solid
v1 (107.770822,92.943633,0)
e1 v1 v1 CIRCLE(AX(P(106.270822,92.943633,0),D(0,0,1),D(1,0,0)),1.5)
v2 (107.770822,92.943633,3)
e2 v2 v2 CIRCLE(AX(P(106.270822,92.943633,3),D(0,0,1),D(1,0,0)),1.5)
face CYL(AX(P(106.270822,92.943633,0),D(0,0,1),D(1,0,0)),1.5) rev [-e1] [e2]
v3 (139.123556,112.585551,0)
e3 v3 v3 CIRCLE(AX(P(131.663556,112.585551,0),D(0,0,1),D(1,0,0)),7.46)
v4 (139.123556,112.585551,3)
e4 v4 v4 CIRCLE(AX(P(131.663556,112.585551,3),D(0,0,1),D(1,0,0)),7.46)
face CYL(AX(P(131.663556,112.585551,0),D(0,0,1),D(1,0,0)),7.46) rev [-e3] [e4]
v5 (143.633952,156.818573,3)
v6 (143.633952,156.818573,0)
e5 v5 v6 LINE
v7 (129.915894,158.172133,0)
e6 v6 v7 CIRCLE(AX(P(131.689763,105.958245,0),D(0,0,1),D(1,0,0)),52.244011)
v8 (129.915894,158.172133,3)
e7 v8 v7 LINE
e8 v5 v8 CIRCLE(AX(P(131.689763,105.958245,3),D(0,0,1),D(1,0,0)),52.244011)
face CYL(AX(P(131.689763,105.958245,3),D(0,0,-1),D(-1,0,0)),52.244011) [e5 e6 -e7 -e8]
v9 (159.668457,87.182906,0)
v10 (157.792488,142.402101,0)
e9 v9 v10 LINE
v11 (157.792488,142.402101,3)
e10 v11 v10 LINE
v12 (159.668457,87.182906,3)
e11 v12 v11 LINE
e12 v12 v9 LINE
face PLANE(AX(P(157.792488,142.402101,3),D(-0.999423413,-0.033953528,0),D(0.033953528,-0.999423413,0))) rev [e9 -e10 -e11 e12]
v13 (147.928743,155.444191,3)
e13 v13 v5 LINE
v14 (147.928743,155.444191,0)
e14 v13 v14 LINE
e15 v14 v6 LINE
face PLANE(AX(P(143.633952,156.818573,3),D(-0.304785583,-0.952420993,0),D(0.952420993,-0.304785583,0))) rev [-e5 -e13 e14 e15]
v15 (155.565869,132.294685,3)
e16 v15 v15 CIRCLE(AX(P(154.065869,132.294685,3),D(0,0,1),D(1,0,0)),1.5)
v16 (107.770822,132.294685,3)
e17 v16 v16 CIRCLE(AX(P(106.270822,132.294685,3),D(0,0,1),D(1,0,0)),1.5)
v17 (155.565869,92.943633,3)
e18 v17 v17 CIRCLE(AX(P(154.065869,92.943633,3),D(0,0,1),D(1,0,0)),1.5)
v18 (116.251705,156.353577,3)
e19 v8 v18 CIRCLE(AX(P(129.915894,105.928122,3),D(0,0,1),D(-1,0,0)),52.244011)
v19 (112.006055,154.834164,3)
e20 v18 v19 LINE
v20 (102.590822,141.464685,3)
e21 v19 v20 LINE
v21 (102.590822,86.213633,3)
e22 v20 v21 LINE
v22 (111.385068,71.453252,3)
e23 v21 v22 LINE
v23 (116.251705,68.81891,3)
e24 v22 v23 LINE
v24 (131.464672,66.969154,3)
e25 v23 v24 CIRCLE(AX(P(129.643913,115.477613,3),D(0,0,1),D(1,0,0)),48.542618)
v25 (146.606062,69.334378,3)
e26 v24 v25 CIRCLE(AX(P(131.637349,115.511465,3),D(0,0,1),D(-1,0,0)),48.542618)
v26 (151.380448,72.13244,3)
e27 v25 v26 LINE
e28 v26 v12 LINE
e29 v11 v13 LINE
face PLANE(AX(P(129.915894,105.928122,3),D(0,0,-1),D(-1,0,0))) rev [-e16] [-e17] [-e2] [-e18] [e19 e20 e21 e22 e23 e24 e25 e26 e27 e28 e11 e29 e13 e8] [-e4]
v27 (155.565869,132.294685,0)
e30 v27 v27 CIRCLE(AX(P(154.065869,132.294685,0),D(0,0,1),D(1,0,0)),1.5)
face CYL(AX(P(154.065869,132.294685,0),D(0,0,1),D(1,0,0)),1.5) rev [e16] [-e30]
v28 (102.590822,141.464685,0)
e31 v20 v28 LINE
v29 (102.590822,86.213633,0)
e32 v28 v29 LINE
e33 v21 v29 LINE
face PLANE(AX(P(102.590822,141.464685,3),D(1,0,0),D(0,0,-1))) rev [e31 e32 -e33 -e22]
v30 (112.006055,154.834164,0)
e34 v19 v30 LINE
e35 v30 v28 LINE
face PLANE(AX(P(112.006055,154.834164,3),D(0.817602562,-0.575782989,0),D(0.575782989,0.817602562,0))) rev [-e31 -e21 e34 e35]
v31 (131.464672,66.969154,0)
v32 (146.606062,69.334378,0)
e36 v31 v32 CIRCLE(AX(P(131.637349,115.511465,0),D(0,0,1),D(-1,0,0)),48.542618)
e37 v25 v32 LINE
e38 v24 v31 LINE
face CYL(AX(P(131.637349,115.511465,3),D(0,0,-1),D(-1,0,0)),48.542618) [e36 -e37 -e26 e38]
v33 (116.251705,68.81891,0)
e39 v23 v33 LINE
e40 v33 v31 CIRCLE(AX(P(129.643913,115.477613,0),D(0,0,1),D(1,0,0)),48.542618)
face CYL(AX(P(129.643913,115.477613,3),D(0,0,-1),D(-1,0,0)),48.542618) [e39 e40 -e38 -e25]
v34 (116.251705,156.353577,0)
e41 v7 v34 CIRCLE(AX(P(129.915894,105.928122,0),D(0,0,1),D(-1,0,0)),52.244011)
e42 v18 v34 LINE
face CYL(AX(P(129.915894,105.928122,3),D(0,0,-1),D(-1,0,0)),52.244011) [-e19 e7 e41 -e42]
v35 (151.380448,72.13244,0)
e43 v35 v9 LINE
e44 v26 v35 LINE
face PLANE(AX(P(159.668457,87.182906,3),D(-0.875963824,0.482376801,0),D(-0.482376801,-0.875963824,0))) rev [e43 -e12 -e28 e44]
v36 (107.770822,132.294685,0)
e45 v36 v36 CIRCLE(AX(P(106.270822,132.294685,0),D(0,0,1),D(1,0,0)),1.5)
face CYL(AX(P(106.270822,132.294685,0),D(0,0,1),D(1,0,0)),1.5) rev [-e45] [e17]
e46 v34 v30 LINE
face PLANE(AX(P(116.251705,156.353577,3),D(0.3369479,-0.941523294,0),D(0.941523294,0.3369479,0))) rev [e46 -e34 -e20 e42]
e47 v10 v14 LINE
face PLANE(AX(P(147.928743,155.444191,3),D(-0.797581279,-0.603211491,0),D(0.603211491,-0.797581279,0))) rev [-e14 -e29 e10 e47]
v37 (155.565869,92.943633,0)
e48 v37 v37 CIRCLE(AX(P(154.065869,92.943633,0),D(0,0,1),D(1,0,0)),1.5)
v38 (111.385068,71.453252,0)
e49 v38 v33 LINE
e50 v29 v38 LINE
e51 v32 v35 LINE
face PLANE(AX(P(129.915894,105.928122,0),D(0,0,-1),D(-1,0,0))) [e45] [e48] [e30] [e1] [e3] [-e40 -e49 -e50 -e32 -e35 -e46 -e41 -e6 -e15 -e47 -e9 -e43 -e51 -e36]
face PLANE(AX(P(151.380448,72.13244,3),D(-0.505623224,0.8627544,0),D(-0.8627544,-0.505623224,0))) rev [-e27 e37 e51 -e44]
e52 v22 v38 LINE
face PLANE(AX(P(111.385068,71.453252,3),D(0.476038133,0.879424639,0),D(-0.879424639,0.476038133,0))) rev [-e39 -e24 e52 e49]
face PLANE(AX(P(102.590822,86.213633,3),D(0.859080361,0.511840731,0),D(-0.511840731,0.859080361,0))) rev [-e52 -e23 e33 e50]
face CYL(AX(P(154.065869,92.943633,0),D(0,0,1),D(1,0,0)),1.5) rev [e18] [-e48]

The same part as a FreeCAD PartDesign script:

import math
import FreeCAD as App
import Part
import Sketcher
Q = App.Units.Quantity

doc = App.newDocument("Part")
body = doc.addObject("PartDesign::Body", "Body")

# Sketch on XY plane
sketch1 = body.newObject("Sketcher::SketchObject", "Sketch")
sketch1.AttachmentSupport = (doc.getObject("XY_Plane"), [""])
sketch1.MapMode = "FlatFace"
sketch1.addGeometry([
    Part.LineSegment(App.Vector(116.3, 156.4, 0), App.Vector(112, 154.8, 0)),  # 0
    Part.LineSegment(App.Vector(112, 154.8, 0), App.Vector(102.6, 141.5, 0)),  # 1
    Part.LineSegment(App.Vector(102.6, 141.5, 0), App.Vector(102.6, 86.2, 0)),  # 2
    Part.LineSegment(App.Vector(102.6, 86.2, 0), App.Vector(111.4, 71.5, 0)),  # 3
    Part.LineSegment(App.Vector(111.4, 71.5, 0), App.Vector(116.3, 68.8, 0)),  # 4
    Part.ArcOfCircle(Part.Circle(App.Vector(129.6, 115.5, 0), App.Vector(0, 0, 1), 48.5), math.radians(-106.01), math.radians(-87.85)),  # 5
    Part.ArcOfCircle(Part.Circle(App.Vector(131.6, 115.5, 0), App.Vector(0, 0, 1), 48.5), math.radians(-90.2), math.radians(-72.04)),  # 6
    Part.LineSegment(App.Vector(146.6, 69.3, 0), App.Vector(151.4, 72.1, 0)),  # 7
    Part.LineSegment(App.Vector(151.4, 72.1, 0), App.Vector(159.7, 87.2, 0)),  # 8
    Part.LineSegment(App.Vector(159.7, 87.2, 0), App.Vector(157.8, 142.4, 0)),  # 9
    Part.LineSegment(App.Vector(157.8, 142.4, 0), App.Vector(147.9, 155.4, 0)),  # 10
    Part.LineSegment(App.Vector(147.9, 155.4, 0), App.Vector(143.6, 156.8, 0)),  # 11
    Part.ArcOfCircle(Part.Circle(App.Vector(131.7, 106, 0), App.Vector(0, 0, 1), 52.2), math.radians(76.78), math.radians(91.95)),  # 12
    Part.ArcOfCircle(Part.Circle(App.Vector(129.9, 105.9, 0), App.Vector(0, 0, 1), 52.2), math.radians(90), math.radians(105.16)),  # 13
], False)
sketch1.addConstraint([
    Sketcher.Constraint("Coincident", 0, 2, 1, 1),
    Sketcher.Constraint("Coincident", 1, 2, 2, 1),
    Sketcher.Constraint("Coincident", 2, 2, 3, 1),
    Sketcher.Constraint("Coincident", 3, 2, 4, 1),
    Sketcher.Constraint("Coincident", 4, 2, 5, 1),
    Sketcher.Constraint("Coincident", 5, 2, 6, 1),
    Sketcher.Constraint("Coincident", 6, 2, 7, 1),
    Sketcher.Constraint("Coincident", 7, 2, 8, 1),
    Sketcher.Constraint("Coincident", 8, 2, 9, 1),
    Sketcher.Constraint("Coincident", 9, 2, 10, 1),
    Sketcher.Constraint("Coincident", 10, 2, 11, 1),
    Sketcher.Constraint("Coincident", 11, 2, 12, 1),
    Sketcher.Constraint("Coincident", 12, 2, 13, 1),
    Sketcher.Constraint("Coincident", 13, 2, 0, 1),
    Sketcher.Constraint("Vertical", 2),
    Sketcher.Constraint("Equal", 5, 6),
    Sketcher.Constraint("Equal", 12, 13),
    Sketcher.Constraint("Vertical", 13, 3, 12, 2),
    Sketcher.Constraint("Vertical", 4, 2, 13, 2),
    Sketcher.Constraint("Equal", 4, 7),
    Sketcher.Constraint("Equal", 3, 8),
    Sketcher.Constraint("Equal", 1, 10),
    Sketcher.Constraint("Equal", 0, 11),
    Sketcher.Constraint("Radius", 5, Q("48.542618 mm")),
    Sketcher.Constraint("Radius", 12, Q("52.244011 mm")),
    Sketcher.Constraint("DistanceY", -1, 1, 9, 2, Q("142.402101 mm")),
    Sketcher.Constraint("DistanceY", 6, 3, 0, 2, Q("39.322699 mm")),
    Sketcher.Constraint("DistanceX", 12, 3, 6, 2, Q("14.9163 mm")),
    Sketcher.Constraint("Distance", 0, Q("4.509341 mm")),
    Sketcher.Constraint("Distance", 1, Q("16.352051 mm")),
    Sketcher.Constraint("DistanceY", 2, 2, 2, 1, Q("55.251052 mm")),
    Sketcher.Constraint("DistanceX", -1, 1, 6, 3, Q("131.637349 mm")),
    Sketcher.Constraint("DistanceX", -1, 1, 1, 2, Q("102.590822 mm")),
    Sketcher.Constraint("DistanceX", -1, 1, 3, 2, Q("111.385068 mm")),
    Sketcher.Constraint("DistanceY", -1, 1, 3, 2, Q("71.453252 mm")),
    Sketcher.Constraint("DistanceY", -1, 1, 4, 2, Q("68.81891 mm")),
    Sketcher.Constraint("DistanceY", -1, 1, 7, 2, Q("72.13244 mm")),
    Sketcher.Constraint("DistanceX", -1, 1, 9, 2, Q("157.792488 mm")),
    Sketcher.Constraint("DistanceY", -1, 1, 10, 2, Q("155.444191 mm")),
    Sketcher.Constraint("DistanceX", -1, 1, 11, 2, Q("143.633952 mm")),
    Sketcher.Constraint("DistanceY", 5, 3, 6, 3, Q("0.033852 mm")),
    Sketcher.Constraint("DistanceY", 12, 3, 6, 3, Q("9.55322 mm")),
    Sketcher.Constraint("DistanceX", 5, 3, 12, 3, Q("2.04585 mm")),
    Sketcher.Constraint("DistanceX", 13, 3, 12, 3, Q("1.773868 mm")),
    Sketcher.Constraint("DistanceX", 0, 2, 5, 3, Q("17.637858 mm")),
    Sketcher.Constraint("DistanceX", 7, 2, 8, 2, Q("8.288009 mm")),
])
pad1 = body.newObject("PartDesign::Pad", "Pad")
pad1.Profile = sketch1
pad1.Length = 3

# Sketch on XY plane
sketch2 = body.newObject("Sketcher::SketchObject", "Sketch001")
sketch2.AttachmentSupport = (doc.getObject("XY_Plane"), [""])
sketch2.MapMode = "FlatFace"
sketch2.AttachmentOffset = App.Placement(App.Vector(0, 0, 3), App.Rotation())
sketch2.addGeometry([
    Part.Circle(App.Vector(106.3, 132.3, 0), App.Vector(0, 0, 1), 1.5),  # 0
    Part.Circle(App.Vector(106.3, 92.9, 0), App.Vector(0, 0, 1), 1.5),  # 1
    Part.Circle(App.Vector(154.1, 132.3, 0), App.Vector(0, 0, 1), 1.5),  # 2
    Part.Circle(App.Vector(154.1, 92.9, 0), App.Vector(0, 0, 1), 1.5),  # 3
    Part.Circle(App.Vector(131.7, 112.6, 0), App.Vector(0, 0, 1), 7.5),  # 4
], False)
sketch2.addConstraint([
    Sketcher.Constraint("Equal", 0, 1),
    Sketcher.Constraint("Equal", 1, 2),
    Sketcher.Constraint("Equal", 2, 3),
    Sketcher.Constraint("Horizontal", 0, 3, 2, 3),
    Sketcher.Constraint("Horizontal", 1, 3, 3, 3),
    Sketcher.Constraint("Vertical", 0, 3, 1, 3),
    Sketcher.Constraint("Vertical", 2, 3, 3, 3),
    Sketcher.Constraint("Diameter", 0, Q("3 mm")),
    Sketcher.Constraint("Diameter", 4, Q("14.92 mm")),
    Sketcher.Constraint("DistanceX", -1, 1, 0, 3, Q("106.270822 mm")),
    Sketcher.Constraint("DistanceX", -1, 1, 2, 3, Q("154.065869 mm")),
    Sketcher.Constraint("DistanceY", -1, 1, 4, 3, Q("112.585551 mm")),
    Sketcher.Constraint("DistanceY", 3, 3, 4, 3, Q("19.641918 mm")),
    Sketcher.Constraint("DistanceY", -1, 1, 0, 3, Q("132.294685 mm")),
    Sketcher.Constraint("DistanceX", -1, 1, 4, 3, Q("131.663556 mm")),
])
pocket1 = body.newObject("PartDesign::Pocket", "Pocket")
pocket1.Profile = sketch2
pocket1.Length = 3

doc.recompute()
